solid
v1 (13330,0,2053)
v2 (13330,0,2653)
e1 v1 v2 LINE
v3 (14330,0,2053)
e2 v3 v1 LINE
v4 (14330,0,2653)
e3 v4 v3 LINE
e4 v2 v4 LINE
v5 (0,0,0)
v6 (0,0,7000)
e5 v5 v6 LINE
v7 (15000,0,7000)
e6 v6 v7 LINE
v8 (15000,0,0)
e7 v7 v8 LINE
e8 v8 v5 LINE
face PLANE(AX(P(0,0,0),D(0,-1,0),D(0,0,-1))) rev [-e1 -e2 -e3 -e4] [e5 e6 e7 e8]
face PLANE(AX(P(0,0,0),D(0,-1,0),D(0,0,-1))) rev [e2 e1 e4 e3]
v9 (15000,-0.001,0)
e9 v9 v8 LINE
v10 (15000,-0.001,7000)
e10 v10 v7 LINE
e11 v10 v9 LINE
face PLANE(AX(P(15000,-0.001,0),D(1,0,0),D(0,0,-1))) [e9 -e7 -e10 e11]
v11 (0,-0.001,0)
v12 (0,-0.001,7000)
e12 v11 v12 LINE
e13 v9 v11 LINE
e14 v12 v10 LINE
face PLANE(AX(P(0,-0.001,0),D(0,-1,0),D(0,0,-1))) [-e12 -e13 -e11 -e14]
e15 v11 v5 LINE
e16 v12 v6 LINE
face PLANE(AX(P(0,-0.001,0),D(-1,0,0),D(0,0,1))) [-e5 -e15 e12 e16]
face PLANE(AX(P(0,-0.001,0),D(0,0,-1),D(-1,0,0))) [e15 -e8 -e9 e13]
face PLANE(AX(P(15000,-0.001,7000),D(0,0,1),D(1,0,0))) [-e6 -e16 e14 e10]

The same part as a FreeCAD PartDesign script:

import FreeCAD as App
import Part
import Sketcher
from FreeCAD import Vector


def add_polygon(sketch, points):
    """Adds a closed chain of lines whose ends are joined by coincident constraints."""
    first, n = sketch.GeometryCount, len(points)
    for a, b in zip(points, points[1:] + points[:1]):
        sketch.addGeometry(Part.LineSegment(App.Vector(*a, 0), App.Vector(*b, 0)), False)
    for i in range(n):
        sketch.addConstraint(Sketcher.Constraint("Coincident", first + i, 2, first + (i + 1) % n, 1))

doc = App.newDocument("Part")
params = doc.addObject("Spreadsheet::Sheet", "Params")
for row, (alias, value) in enumerate([
    ("sketch1_width", "15000 mm"),
    ("sketch1_height", "7000 mm"),
    ("pad1_length", "0.001 mm"),
], start=1):
    params.set(f"A{row}", alias)
    params.set(f"B{row}", "=" + value)
    params.setAlias(f"B{row}", alias)

body = doc.addObject("PartDesign::Body", "Body")

sketch1 = doc.addObject("Sketcher::SketchObject", "Sketch")
body.addObject(sketch1)
sketch1.AttachmentSupport = (doc.XZ_Plane, [""])
sketch1.MapMode = "FlatFace"
add_polygon(sketch1, [(0, 0), (0, 7000), (15000, 7000), (15000, 0)])
sketch1.addConstraint([
    Sketcher.Constraint("Vertical", 0),
    Sketcher.Constraint("Horizontal", 1),
    Sketcher.Constraint("Vertical", 2),
    Sketcher.Constraint("Horizontal", 3),
    Sketcher.Constraint("Coincident", 3, 2, -1, 1),
    Sketcher.Constraint("DistanceX", 1, 1, 1, 2, 15000.0),
    Sketcher.Constraint("DistanceY", 0, 1, 0, 2, 7000.0),
])
sketch1.setExpression("Constraints[9]", "Params.sketch1_width")
sketch1.setExpression("Constraints[10]", "Params.sketch1_height")
pad1 = doc.addObject("PartDesign::Pad", "Pad")
body.addObject(pad1)
pad1.Profile = sketch1
pad1.setExpression("Length", "Params.pad1_length")

doc.recompute()
